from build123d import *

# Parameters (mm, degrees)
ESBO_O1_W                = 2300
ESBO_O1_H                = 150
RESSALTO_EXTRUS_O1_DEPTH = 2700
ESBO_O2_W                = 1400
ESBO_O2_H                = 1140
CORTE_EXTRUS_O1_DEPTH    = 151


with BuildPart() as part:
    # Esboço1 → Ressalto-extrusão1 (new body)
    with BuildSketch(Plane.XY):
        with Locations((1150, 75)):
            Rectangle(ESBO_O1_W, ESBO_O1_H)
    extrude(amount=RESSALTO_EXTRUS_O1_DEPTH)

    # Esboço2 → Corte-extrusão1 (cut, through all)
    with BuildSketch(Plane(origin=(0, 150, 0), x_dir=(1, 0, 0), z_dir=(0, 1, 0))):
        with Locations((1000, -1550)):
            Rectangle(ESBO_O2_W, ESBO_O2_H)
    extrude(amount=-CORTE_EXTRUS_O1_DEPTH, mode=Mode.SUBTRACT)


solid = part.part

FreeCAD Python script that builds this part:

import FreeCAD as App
import Part
import Sketcher

V = App.Vector
Q = App.Units.Quantity


def add_polygon(sketch, points):
    """Adds a closed chain of lines whose ends are joined by coincident constraints."""
    first, n = sketch.GeometryCount, len(points)
    for a, b in zip(points, points[1:] + points[:1]):
        sketch.addGeometry(Part.LineSegment(App.Vector(*a, 0), App.Vector(*b, 0)), False)
    for i in range(n):
        sketch.addConstraint(Sketcher.Constraint("Coincident", first + i, 2, first + (i + 1) % n, 1))

doc = App.newDocument("Part")
params = doc.addObject("Spreadsheet::Sheet", "Params")
for row, (alias, value) in enumerate([
    ("sketch1_width", "2300 mm"),
    ("sketch1_height", "150 mm"),
    ("pad1_length", "2700 mm"),
    ("sketch2_width", "1400 mm"),
    ("sketch2_height", "1140 mm"),
], start=1):
    params.set(f"A{row}", alias)
    params.set(f"B{row}", "=" + value)
    params.setAlias(f"B{row}", alias)

body = doc.addObject("PartDesign::Body", "Body")

sketch1 = doc.addObject("Sketcher::SketchObject", "Sketch")
body.addObject(sketch1)
sketch1.AttachmentSupport = (doc.XY_Plane, [""])
sketch1.MapMode = "FlatFace"
add_polygon(sketch1, [(0, 150), (0, 0), (2300, 0), (2300, 150)])
sketch1.addConstraint([
    Sketcher.Constraint("Vertical", 0),
    Sketcher.Constraint("Horizontal", 1),
    Sketcher.Constraint("Vertical", 2),
    Sketcher.Constraint("Horizontal", 3),
    Sketcher.Constraint("Coincident", 0, 2, -1, 1),
    Sketcher.Constraint("DistanceX", 1, 1, 1, 2, Q("2300 mm")),
    Sketcher.Constraint("DistanceY", 0, 2, 0, 1, Q("150 mm")),
])
sketch1.setExpression("Constraints[9]", "Params.sketch1_width")
sketch1.setExpression("Constraints[10]", "Params.sketch1_height")
pad1 = doc.addObject("PartDesign::Pad", "Pad")
body.addObject(pad1)
pad1.Profile = sketch1
pad1.setExpression("Length", "Params.pad1_length")

sketch2 = doc.addObject("Sketcher::SketchObject", "Sketch001")
body.addObject(sketch2)
sketch2.AttachmentSupport = (doc.XZ_Plane, [""])
sketch2.MapMode = "FlatFace"
sketch2.AttachmentOffset = App.Placement(V(0, 0, -150), App.Rotation())
add_polygon(sketch2, [(300, 980), (300, 2120), (1700, 2120), (1700, 980)])
sketch2.addConstraint([
    Sketcher.Constraint("Vertical", 0),
    Sketcher.Constraint("Horizontal", 1),
    Sketcher.Constraint("Vertical", 2),
    Sketcher.Constraint("Horizontal", 3),
    Sketcher.Constraint("DistanceX", 1, 1, 1, 2, Q("1400 mm")),
    Sketcher.Constraint("DistanceY", 0, 1, 0, 2, Q("1140 mm")),
    Sketcher.Constraint("DistanceX", -1, 1, 0, 2, Q("300 mm")),
    Sketcher.Constraint("DistanceY", -1, 1, 0, 2, Q("2120 mm")),
])
sketch2.setExpression("Constraints[8]", "Params.sketch2_width")
sketch2.setExpression("Constraints[9]", "Params.sketch2_height")
pocket1 = doc.addObject("PartDesign::Pocket", "Pocket")
body.addObject(pocket1)
pocket1.Profile = sketch2
pocket1.Type = "ThroughAll"
pocket1.Reversed = True

doc.recompute()
